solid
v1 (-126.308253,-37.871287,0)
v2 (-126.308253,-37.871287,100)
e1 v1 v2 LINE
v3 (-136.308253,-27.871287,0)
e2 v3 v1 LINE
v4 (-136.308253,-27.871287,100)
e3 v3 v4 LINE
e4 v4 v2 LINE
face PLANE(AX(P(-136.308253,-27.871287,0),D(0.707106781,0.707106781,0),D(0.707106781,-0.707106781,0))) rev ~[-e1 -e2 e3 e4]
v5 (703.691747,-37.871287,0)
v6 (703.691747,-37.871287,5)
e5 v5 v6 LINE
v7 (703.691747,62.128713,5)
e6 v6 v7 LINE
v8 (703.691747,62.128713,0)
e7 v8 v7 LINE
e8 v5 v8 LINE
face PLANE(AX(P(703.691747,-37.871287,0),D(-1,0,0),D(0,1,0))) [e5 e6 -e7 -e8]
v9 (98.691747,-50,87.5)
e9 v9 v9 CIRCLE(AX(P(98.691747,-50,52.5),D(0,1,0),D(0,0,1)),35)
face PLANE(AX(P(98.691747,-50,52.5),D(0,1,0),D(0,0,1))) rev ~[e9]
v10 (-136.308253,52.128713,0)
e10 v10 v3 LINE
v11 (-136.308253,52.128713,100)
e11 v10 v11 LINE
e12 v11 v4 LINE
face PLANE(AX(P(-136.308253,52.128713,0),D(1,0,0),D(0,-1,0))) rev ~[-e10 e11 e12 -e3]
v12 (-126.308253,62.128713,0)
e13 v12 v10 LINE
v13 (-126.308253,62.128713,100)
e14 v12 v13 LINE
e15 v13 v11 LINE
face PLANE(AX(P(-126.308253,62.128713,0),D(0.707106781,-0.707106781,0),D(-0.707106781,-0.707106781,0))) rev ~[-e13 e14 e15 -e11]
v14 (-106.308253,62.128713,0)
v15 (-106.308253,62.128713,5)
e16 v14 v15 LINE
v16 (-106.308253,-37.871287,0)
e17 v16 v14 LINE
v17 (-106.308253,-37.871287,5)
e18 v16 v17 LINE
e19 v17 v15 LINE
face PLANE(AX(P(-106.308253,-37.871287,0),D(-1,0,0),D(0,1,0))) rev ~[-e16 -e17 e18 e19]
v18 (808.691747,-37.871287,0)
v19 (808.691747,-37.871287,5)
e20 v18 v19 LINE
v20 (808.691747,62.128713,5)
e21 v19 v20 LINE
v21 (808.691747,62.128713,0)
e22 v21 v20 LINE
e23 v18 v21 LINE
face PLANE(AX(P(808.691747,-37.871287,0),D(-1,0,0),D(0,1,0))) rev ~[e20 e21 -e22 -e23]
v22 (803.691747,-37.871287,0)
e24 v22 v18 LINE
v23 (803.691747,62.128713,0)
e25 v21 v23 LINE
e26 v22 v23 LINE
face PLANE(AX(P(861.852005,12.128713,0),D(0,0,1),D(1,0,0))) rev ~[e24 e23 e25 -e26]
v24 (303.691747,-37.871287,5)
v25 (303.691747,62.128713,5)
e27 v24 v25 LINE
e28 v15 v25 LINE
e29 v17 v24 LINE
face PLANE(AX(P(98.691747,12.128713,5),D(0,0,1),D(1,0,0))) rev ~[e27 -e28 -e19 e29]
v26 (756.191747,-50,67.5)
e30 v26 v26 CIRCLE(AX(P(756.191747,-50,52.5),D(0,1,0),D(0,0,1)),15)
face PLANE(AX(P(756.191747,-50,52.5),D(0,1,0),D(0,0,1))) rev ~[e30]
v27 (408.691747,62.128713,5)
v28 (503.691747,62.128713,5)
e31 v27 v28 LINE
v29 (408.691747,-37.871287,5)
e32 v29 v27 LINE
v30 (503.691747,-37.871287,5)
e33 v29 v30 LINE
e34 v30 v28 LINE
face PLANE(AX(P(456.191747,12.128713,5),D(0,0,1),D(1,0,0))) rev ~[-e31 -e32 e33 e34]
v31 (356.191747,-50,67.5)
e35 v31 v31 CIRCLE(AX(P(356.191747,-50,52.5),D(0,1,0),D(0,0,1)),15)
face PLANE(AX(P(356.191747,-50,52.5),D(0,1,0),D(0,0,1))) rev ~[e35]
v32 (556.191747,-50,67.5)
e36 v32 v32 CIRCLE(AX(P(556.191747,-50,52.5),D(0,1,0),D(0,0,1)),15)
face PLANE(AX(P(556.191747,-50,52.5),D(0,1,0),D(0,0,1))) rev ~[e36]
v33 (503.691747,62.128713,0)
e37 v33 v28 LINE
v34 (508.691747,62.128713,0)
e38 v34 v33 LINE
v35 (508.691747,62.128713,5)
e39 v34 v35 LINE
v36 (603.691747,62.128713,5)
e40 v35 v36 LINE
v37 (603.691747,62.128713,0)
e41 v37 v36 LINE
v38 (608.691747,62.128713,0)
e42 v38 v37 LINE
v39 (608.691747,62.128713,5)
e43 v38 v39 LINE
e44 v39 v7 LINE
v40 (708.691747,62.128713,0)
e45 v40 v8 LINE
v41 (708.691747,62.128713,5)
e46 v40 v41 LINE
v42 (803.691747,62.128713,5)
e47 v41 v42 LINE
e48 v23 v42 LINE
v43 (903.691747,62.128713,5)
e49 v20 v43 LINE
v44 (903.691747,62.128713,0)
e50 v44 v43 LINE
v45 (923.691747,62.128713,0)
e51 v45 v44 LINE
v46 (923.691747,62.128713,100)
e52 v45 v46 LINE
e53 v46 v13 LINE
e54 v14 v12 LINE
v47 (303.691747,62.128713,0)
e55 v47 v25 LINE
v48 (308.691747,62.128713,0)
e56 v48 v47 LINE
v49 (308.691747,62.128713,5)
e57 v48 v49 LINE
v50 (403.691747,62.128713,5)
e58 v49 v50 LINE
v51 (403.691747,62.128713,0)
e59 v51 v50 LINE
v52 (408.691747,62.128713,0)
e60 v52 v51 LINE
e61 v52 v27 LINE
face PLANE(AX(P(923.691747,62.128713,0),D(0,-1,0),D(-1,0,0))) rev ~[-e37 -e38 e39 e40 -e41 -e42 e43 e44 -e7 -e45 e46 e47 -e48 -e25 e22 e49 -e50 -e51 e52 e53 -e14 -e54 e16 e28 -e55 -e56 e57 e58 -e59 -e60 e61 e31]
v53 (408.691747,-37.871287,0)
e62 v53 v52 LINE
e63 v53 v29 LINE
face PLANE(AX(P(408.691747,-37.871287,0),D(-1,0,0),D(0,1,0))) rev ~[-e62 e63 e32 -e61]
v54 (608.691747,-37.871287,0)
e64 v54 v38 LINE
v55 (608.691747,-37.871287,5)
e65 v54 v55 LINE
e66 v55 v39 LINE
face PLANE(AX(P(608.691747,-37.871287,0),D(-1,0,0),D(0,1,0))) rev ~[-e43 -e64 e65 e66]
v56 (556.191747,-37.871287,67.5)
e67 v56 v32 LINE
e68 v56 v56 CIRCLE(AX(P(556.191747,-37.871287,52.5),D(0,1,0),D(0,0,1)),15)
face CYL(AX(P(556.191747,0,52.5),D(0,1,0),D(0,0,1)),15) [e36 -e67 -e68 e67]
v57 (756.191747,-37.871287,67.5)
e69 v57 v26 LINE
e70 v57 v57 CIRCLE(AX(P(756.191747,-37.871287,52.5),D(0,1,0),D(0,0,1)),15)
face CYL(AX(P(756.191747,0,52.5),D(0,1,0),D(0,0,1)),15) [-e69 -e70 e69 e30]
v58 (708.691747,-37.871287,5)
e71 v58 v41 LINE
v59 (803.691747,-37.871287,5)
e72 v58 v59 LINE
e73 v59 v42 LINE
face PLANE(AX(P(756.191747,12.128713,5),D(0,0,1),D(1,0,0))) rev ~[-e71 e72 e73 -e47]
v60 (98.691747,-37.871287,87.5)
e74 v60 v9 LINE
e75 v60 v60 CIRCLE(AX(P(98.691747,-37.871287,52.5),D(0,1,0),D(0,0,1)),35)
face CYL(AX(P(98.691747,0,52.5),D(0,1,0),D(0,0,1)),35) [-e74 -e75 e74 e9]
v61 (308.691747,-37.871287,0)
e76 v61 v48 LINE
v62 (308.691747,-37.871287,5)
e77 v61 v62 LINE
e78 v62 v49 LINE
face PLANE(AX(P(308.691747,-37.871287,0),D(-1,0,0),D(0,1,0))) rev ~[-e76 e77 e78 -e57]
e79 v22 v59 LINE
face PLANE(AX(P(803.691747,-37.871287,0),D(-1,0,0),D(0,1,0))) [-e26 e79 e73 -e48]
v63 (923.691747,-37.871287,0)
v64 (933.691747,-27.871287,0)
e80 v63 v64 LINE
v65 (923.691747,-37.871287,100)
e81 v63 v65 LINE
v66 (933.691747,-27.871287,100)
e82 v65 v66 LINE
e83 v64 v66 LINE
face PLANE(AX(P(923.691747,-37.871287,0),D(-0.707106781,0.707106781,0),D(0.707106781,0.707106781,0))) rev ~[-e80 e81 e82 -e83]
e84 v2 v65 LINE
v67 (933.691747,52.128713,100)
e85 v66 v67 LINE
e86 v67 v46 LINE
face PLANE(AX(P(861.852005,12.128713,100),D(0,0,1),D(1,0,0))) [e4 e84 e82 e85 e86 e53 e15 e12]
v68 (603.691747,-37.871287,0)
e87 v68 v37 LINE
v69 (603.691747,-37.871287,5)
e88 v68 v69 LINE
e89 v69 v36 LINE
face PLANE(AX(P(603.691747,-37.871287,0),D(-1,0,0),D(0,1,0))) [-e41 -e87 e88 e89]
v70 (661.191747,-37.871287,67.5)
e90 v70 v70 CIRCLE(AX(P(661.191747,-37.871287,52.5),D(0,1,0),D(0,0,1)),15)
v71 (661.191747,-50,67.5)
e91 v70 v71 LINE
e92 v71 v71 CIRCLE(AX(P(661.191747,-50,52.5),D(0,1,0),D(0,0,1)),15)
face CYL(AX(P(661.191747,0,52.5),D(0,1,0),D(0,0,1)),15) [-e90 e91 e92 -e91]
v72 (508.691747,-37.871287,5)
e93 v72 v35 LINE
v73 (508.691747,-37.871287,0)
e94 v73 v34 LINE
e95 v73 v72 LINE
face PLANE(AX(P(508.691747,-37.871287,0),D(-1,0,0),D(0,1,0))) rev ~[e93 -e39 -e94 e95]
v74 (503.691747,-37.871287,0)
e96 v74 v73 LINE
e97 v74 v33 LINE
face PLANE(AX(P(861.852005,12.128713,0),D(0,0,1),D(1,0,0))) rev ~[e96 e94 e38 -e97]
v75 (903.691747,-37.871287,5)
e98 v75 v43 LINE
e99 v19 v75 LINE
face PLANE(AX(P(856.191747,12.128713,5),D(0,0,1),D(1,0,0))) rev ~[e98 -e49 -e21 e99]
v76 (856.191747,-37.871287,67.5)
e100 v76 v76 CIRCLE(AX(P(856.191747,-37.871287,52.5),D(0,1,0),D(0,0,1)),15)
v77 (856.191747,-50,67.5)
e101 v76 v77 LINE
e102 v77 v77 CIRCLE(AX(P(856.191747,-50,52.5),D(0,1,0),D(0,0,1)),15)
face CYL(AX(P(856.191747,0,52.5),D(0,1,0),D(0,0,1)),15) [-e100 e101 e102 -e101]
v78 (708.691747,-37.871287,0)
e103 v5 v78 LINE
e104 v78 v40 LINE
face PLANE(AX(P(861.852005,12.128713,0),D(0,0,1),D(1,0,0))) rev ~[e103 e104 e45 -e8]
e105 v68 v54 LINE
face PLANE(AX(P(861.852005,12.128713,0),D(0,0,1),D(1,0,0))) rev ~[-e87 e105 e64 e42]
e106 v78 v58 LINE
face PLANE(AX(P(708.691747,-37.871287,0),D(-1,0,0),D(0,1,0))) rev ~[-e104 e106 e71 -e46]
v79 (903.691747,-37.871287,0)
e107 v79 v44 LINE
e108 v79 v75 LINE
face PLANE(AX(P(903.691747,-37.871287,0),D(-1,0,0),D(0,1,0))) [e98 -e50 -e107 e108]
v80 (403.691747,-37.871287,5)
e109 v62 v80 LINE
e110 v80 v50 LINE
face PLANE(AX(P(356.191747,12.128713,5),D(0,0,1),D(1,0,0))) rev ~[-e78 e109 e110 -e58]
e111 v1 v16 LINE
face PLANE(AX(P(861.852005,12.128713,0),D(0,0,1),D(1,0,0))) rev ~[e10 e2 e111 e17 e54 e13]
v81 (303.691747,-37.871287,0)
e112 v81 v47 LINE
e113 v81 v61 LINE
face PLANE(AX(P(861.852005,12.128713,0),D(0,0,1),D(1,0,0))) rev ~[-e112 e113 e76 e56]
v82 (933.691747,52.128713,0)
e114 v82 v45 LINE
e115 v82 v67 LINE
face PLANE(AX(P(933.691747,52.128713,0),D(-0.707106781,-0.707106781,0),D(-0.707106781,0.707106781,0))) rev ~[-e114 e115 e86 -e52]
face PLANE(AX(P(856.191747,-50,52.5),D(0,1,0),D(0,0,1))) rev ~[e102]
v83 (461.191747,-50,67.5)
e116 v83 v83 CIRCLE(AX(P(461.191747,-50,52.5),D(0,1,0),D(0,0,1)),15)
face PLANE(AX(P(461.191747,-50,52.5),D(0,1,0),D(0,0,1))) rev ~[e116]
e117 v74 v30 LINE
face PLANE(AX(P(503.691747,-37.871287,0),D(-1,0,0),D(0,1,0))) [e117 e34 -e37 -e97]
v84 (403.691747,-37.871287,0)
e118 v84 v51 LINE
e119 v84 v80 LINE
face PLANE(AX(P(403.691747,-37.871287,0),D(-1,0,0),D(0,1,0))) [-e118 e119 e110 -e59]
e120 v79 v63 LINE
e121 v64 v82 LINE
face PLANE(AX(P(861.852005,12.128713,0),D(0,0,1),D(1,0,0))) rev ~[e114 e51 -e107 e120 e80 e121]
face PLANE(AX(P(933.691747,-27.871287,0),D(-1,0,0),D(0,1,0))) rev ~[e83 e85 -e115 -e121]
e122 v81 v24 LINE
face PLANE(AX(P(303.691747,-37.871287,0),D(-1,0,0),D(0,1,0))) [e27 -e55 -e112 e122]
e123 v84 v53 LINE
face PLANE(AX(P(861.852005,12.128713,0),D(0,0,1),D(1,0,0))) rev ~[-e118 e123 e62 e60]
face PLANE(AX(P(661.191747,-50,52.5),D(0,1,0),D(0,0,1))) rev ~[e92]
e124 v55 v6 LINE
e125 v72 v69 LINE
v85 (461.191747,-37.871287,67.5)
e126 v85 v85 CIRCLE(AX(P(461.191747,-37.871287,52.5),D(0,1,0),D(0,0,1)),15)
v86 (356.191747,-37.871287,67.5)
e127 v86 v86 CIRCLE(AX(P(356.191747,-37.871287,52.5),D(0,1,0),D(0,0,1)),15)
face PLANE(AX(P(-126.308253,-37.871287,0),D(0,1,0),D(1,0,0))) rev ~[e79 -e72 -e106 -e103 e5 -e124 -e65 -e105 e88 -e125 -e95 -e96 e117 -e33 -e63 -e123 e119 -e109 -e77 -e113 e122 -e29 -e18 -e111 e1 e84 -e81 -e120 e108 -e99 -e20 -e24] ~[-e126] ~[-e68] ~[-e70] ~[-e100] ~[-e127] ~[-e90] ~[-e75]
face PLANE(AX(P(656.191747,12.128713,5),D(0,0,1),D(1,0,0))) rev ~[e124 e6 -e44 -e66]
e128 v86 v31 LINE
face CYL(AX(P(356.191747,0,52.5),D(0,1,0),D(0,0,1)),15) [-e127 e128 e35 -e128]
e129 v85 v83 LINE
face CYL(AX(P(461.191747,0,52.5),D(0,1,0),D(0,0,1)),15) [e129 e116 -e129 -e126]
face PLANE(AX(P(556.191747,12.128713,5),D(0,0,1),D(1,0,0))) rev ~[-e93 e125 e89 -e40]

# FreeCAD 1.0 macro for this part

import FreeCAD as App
import Part
import Sketcher

V = App.Vector
Q = App.Units.Quantity

doc = App.newDocument("Part")
body = doc.addObject("PartDesign::Body", "Body")

# Sketch on XY plane
sketch1 = body.newObject("Sketcher::SketchObject", "Sketch")
sketch1.AttachmentSupport = (doc.getObject("XY_Plane"), [""])
sketch1.MapMode = "FlatFace"
sketch1.addGeometry([
    Part.LineSegment(V(923.691747, -37.871287, 0), V(933.691747, -27.871287, 0)),  # 0
    Part.LineSegment(V(933.691747, -27.871287, 0), V(933.691747, 52.128713, 0)),  # 1
    Part.LineSegment(V(933.691747, 52.128713, 0), V(923.691747, 62.128713, 0)),  # 2
    Part.LineSegment(V(923.691747, 62.128713, 0), V(-126.308253, 62.128713, 0)),  # 3
    Part.LineSegment(V(-126.308253, 62.128713, 0), V(-136.308253, 52.128713, 0)),  # 4
    Part.LineSegment(V(-136.308253, 52.128713, 0), V(-136.308253, -27.871287, 0)),  # 5
    Part.LineSegment(V(-136.308253, -27.871287, 0), V(-126.308253, -37.871287, 0)),  # 6
    Part.LineSegment(V(-126.308253, -37.871287, 0), V(923.691747, -37.871287, 0)),  # 7
], False)
sketch1.addConstraint([
    Sketcher.Constraint("Coincident", 0, 2, 1, 1),
    Sketcher.Constraint("Coincident", 1, 2, 2, 1),
    Sketcher.Constraint("Coincident", 2, 2, 3, 1),
    Sketcher.Constraint("Coincident", 3, 2, 4, 1),
    Sketcher.Constraint("Coincident", 4, 2, 5, 1),
    Sketcher.Constraint("Coincident", 5, 2, 6, 1),
    Sketcher.Constraint("Coincident", 6, 2, 7, 1),
    Sketcher.Constraint("Coincident", 7, 2, 0, 1),
    Sketcher.Constraint("Vertical", 1),
    Sketcher.Constraint("Horizontal", 3),
    Sketcher.Constraint("Vertical", 5),
    Sketcher.Constraint("Horizontal", 7),
    Sketcher.Constraint("Perpendicular", 0, 2),
    Sketcher.Constraint("Perpendicular", 2, 4),
    Sketcher.Constraint("Perpendicular", 4, 6),
    Sketcher.Constraint("Horizontal", 1, 2, 4, 2),
    Sketcher.Constraint("Horizontal", 0, 2, 5, 2),
    Sketcher.Constraint("Vertical", 3, 2, 6, 2),
    Sketcher.Constraint("Vertical", 2, 2, 7, 2),
    Sketcher.Constraint("DistanceX", 3, 2, 3, 1, Q("1050 mm")),
    Sketcher.Constraint("DistanceY", 1, 1, 1, 2, Q("80 mm")),
    Sketcher.Constraint("DistanceX", 2, 2, 1, 2, Q("10 mm")),
    Sketcher.Constraint("DistanceX", -1, 1, 0, 2, Q("933.691747 mm")),
    Sketcher.Constraint("DistanceY", 0, 2, -1, 1, Q("27.871287 mm")),
])
pad1 = body.newObject("PartDesign::Pad", "Pad")
pad1.Profile = sketch1
pad1.Length = 100

# Sketch on XY plane
sketch2 = body.newObject("Sketcher::SketchObject", "Sketch001")
sketch2.AttachmentSupport = (doc.getObject("XY_Plane"), [""])
sketch2.MapMode = "FlatFace"
sketch2.addGeometry([
    Part.LineSegment(V(-106.308253, 62.128713, 0), V(-106.308253, -37.871287, 0)),  # 0
    Part.LineSegment(V(-106.308253, -37.871287, 0), V(303.691747, -37.871287, 0)),  # 1
    Part.LineSegment(V(303.691747, -37.871287, 0), V(303.691747, 62.128713, 0)),  # 2
    Part.LineSegment(V(303.691747, 62.128713, 0), V(-106.308253, 62.128713, 0)),  # 3
    Part.LineSegment(V(808.691747, 62.128713, 0), V(808.691747, -37.871287, 0)),  # 4
    Part.LineSegment(V(808.691747, -37.871287, 0), V(903.691747, -37.871287, 0)),  # 5
    Part.LineSegment(V(903.691747, -37.871287, 0), V(903.691747, 62.128713, 0)),  # 6
    Part.LineSegment(V(903.691747, 62.128713, 0), V(808.691747, 62.128713, 0)),  # 7
    Part.LineSegment(V(708.691747, 62.128713, 0), V(708.691747, -37.871287, 0)),  # 8
    Part.LineSegment(V(708.691747, -37.871287, 0), V(803.691747, -37.871287, 0)),  # 9
    Part.LineSegment(V(803.691747, -37.871287, 0), V(803.691747, 62.128713, 0)),  # 10
    Part.LineSegment(V(803.691747, 62.128713, 0), V(708.691747, 62.128713, 0)),  # 11
    Part.LineSegment(V(608.691747, 62.128713, 0), V(608.691747, -37.871287, 0)),  # 12
    Part.LineSegment(V(608.691747, -37.871287, 0), V(703.691747, -37.871287, 0)),  # 13
    Part.LineSegment(V(703.691747, -37.871287, 0), V(703.691747, 62.128713, 0)),  # 14
    Part.LineSegment(V(703.691747, 62.128713, 0), V(608.691747, 62.128713, 0)),  # 15
    Part.LineSegment(V(508.691747, 62.128713, 0), V(508.691747, -37.871287, 0)),  # 16
    Part.LineSegment(V(508.691747, -37.871287, 0), V(603.691747, -37.871287, 0)),  # 17
    Part.LineSegment(V(603.691747, -37.871287, 0), V(603.691747, 62.128713, 0)),  # 18
    Part.LineSegment(V(603.691747, 62.128713, 0), V(508.691747, 62.128713, 0)),  # 19
    Part.LineSegment(V(408.691747, 62.128713, 0), V(408.691747, -37.871287, 0)),  # 20
    Part.LineSegment(V(408.691747, -37.871287, 0), V(503.691747, -37.871287, 0)),  # 21
    Part.LineSegment(V(503.691747, -37.871287, 0), V(503.691747, 62.128713, 0)),  # 22
    Part.LineSegment(V(503.691747, 62.128713, 0), V(408.691747, 62.128713, 0)),  # 23
    Part.LineSegment(V(308.691747, 62.128713, 0), V(308.691747, -37.871287, 0)),  # 24
    Part.LineSegment(V(308.691747, -37.871287, 0), V(403.691747, -37.871287, 0)),  # 25
    Part.LineSegment(V(403.691747, -37.871287, 0), V(403.691747, 62.128713, 0)),  # 26
    Part.LineSegment(V(403.691747, 62.128713, 0), V(308.691747, 62.128713, 0)),  # 27
], False)
sketch2.addConstraint([
    Sketcher.Constraint("Coincident", 0, 2, 1, 1),
    Sketcher.Constraint("Coincident", 1, 2, 2, 1),
    Sketcher.Constraint("Coincident", 2, 2, 3, 1),
    Sketcher.Constraint("Coincident", 3, 2, 0, 1),
    Sketcher.Constraint("Coincident", 4, 2, 5, 1),
    Sketcher.Constraint("Coincident", 5, 2, 6, 1),
    Sketcher.Constraint("Coincident", 6, 2, 7, 1),
    Sketcher.Constraint("Coincident", 7, 2, 4, 1),
    Sketcher.Constraint("Coincident", 8, 2, 9, 1),
    Sketcher.Constraint("Coincident", 9, 2, 10, 1),
    Sketcher.Constraint("Coincident", 10, 2, 11, 1),
    Sketcher.Constraint("Coincident", 11, 2, 8, 1),
    Sketcher.Constraint("Coincident", 12, 2, 13, 1),
    Sketcher.Constraint("Coincident", 13, 2, 14, 1),
    Sketcher.Constraint("Coincident", 14, 2, 15, 1),
    Sketcher.Constraint("Coincident", 15, 2, 12, 1),
    Sketcher.Constraint("Coincident", 16, 2, 17, 1),
    Sketcher.Constraint("Coincident", 17, 2, 18, 1),
    Sketcher.Constraint("Coincident", 18, 2, 19, 1),
    Sketcher.Constraint("Coincident", 19, 2, 16, 1),
    Sketcher.Constraint("Coincident", 20, 2, 21, 1),
    Sketcher.Constraint("Coincident", 21, 2, 22, 1),
    Sketcher.Constraint("Coincident", 22, 2, 23, 1),
    Sketcher.Constraint("Coincident", 23, 2, 20, 1),
    Sketcher.Constraint("Coincident", 24, 2, 25, 1),
    Sketcher.Constraint("Coincident", 25, 2, 26, 1),
    Sketcher.Constraint("Coincident", 26, 2, 27, 1),
    Sketcher.Constraint("Coincident", 27, 2, 24, 1),
    Sketcher.Constraint("Vertical", 0),
    Sketcher.Constraint("Horizontal", 1),
    Sketcher.Constraint("Vertical", 2),
    Sketcher.Constraint("Horizontal", 3),
    Sketcher.Constraint("Vertical", 4),
    Sketcher.Constraint("Horizontal", 5),
    Sketcher.Constraint("Vertical", 6),
    Sketcher.Constraint("Horizontal", 7),
    Sketcher.Constraint("Vertical", 8),
    Sketcher.Constraint("Horizontal", 9),
    Sketcher.Constraint("Vertical", 10),
    Sketcher.Constraint("Horizontal", 11),
    Sketcher.Constraint("Vertical", 12),
    Sketcher.Constraint("Horizontal", 13),
    Sketcher.Constraint("Vertical", 14),
    Sketcher.Constraint("Horizontal", 15),
    Sketcher.Constraint("Vertical", 16),
    Sketcher.Constraint("Horizontal", 17),
    Sketcher.Constraint("Vertical", 18),
    Sketcher.Constraint("Horizontal", 19),
    Sketcher.Constraint("Vertical", 20),
    Sketcher.Constraint("Horizontal", 21),
    Sketcher.Constraint("Vertical", 22),
    Sketcher.Constraint("Horizontal", 23),
    Sketcher.Constraint("Vertical", 24),
    Sketcher.Constraint("Horizontal", 25),
    Sketcher.Constraint("Vertical", 26),
    Sketcher.Constraint("Horizontal", 27),
    Sketcher.Constraint("Horizontal", 1, 2, 4, 2),
    Sketcher.Constraint("Horizontal", 3, 2, 6, 2),
    Sketcher.Constraint("Horizontal", 5, 2, 8, 2),
    Sketcher.Constraint("Horizontal", 7, 2, 10, 2),
    Sketcher.Constraint("Horizontal", 9, 2, 12, 2),
    Sketcher.Constraint("Horizontal", 11, 2, 14, 2),
    Sketcher.Constraint("Horizontal", 13, 2, 16, 2),
    Sketcher.Constraint("Horizontal", 15, 2, 18, 2),
    Sketcher.Constraint("Horizontal", 17, 2, 20, 2),
    Sketcher.Constraint("Horizontal", 19, 2, 22, 2),
    Sketcher.Constraint("Horizontal", 21, 2, 24, 2),
    Sketcher.Constraint("Horizontal", 23, 2, 26, 2),
    Sketcher.Constraint("Equal", 7, 9),
    Sketcher.Constraint("Equal", 11, 13),
    Sketcher.Constraint("Equal", 15, 17),
    Sketcher.Constraint("Equal", 19, 21),
    Sketcher.Constraint("Equal", 23, 25),
    Sketcher.Constraint("DistanceX", 1, 1, 1, 2, Q("410 mm")),
    Sketcher.Constraint("DistanceX", 5, 1, 5, 2, Q("95 mm")),
    Sketcher.Constraint("DistanceY", 0, 2, 0, 1, Q("100 mm")),
    Sketcher.Constraint("DistanceX", 1, 2, 4, 2, Q("505 mm")),
    Sketcher.Constraint("DistanceX", 8, 2, 4, 2, Q("100 mm")),
    Sketcher.Constraint("DistanceX", 12, 2, 8, 2, Q("100 mm")),
    Sketcher.Constraint("DistanceX", 16, 2, 12, 2, Q("100 mm")),
    Sketcher.Constraint("DistanceX", 20, 2, 16, 2, Q("100 mm")),
    Sketcher.Constraint("DistanceX", 1, 2, 24, 2, Q("5 mm")),
    Sketcher.Constraint("DistanceX", 0, 2, -1, 1, Q("106.308253 mm")),
    Sketcher.Constraint("DistanceY", 0, 2, -1, 1, Q("37.871287 mm")),
])
pocket1 = body.newObject("PartDesign::Pocket", "Pocket")
pocket1.Profile = sketch2
pocket1.Length = 5
pocket1.Reversed = True

# Sketch on XZ plane
sketch3 = body.newObject("Sketcher::SketchObject", "Sketch002")
sketch3.AttachmentSupport = (doc.getObject("XZ_Plane"), [""])
sketch3.MapMode = "FlatFace"
sketch3.addGeometry([
    Part.Circle(V(856.191747, 52.5, 0), V(0, 0, 1), 15),  # 0
    Part.Circle(V(756.191747, 52.5, 0), V(0, 0, 1), 15),  # 1
    Part.Circle(V(661.191747, 52.5, 0), V(0, 0, 1), 15),  # 2
    Part.Circle(V(556.191747, 52.5, 0), V(0, 0, 1), 15),  # 3
    Part.Circle(V(461.191747, 52.5, 0), V(0, 0, 1), 15),  # 4
    Part.Circle(V(356.191747, 52.5, 0), V(0, 0, 1), 15),  # 5
    Part.Circle(V(98.691747, 52.5, 0), V(0, 0, 1), 35),  # 6
], False)
sketch3.addConstraint([
    Sketcher.Constraint("Equal", 0, 1),
    Sketcher.Constraint("Equal", 1, 2),
    Sketcher.Constraint("Equal", 2, 3),
    Sketcher.Constraint("Equal", 3, 4),
    Sketcher.Constraint("Equal", 4, 5),
    Sketcher.Constraint("Horizontal", 0, 3, 1, 3),
    Sketcher.Constraint("Horizontal", 1, 3, 2, 3),
    Sketcher.Constraint("Horizontal", 2, 3, 3, 3),
    Sketcher.Constraint("Horizontal", 3, 3, 4, 3),
    Sketcher.Constraint("Horizontal", 4, 3, 5, 3),
    Sketcher.Constraint("Horizontal", 5, 3, 6, 3),
    Sketcher.Constraint("Diameter", 0, Q("30 mm")),
    Sketcher.Constraint("Diameter", 6, Q("70 mm")),
    Sketcher.Constraint("DistanceX", 1, 3, 0, 3, Q("100 mm")),
    Sketcher.Constraint("DistanceX", 2, 3, 1, 3, Q("95 mm")),
    Sketcher.Constraint("DistanceX", 3, 3, 2, 3, Q("105 mm")),
    Sketcher.Constraint("DistanceX", 4, 3, 3, 3, Q("95 mm")),
    Sketcher.Constraint("DistanceX", 5, 3, 4, 3, Q("105 mm")),
    Sketcher.Constraint("DistanceY", -1, 1, 0, 3, Q("52.5 mm")),
    Sketcher.Constraint("DistanceX", 6, 3, 5, 3, Q("257.5 mm")),
    Sketcher.Constraint("DistanceX", -1, 1, 0, 3, Q("856.191747 mm")),
])
pad2 = body.newObject("PartDesign::Pad", "Pad001")
pad2.Profile = sketch3
pad2.Length = 50

doc.recompute()
